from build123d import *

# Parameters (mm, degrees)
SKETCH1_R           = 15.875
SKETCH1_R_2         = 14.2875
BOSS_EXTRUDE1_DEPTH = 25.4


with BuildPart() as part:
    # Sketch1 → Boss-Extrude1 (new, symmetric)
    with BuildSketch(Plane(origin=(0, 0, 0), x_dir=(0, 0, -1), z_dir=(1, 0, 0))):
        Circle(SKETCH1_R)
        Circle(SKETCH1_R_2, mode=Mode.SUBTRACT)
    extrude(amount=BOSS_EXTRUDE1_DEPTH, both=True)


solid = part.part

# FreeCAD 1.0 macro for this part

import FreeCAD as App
import Part
import Sketcher
Q = App.Units.Quantity

doc = App.newDocument("Part")
body = doc.addObject("PartDesign::Body", "Body")

# Sketch on YZ plane
sketch1 = doc.addObject("Sketcher::SketchObject", "Sketch")
body.addObject(sketch1)
sketch1.AttachmentSupport = (doc.YZ_Plane, [""])
sketch1.MapMode = "FlatFace"
sketch1.addGeometry([
    Part.Circle(App.Vector(0, 0, 0), App.Vector(0, 0, 1), 16),
    Part.Circle(App.Vector(0, 0, 0), App.Vector(0, 0, 1), 14),
], False)
sketch1.addConstraint([
    Sketcher.Constraint("Coincident", 0, 3, -1, 1),
    Sketcher.Constraint("Coincident", 1, 3, -1, 1),
    Sketcher.Constraint("Diameter", 0, Q("1.25 in")),
    Sketcher.Constraint("Diameter", 1, Q("1.125 in")),
])
pad1 = doc.addObject("PartDesign::Pad", "Pad")
body.addObject(pad1)
pad1.Profile = sketch1
pad1.Length = Q("2 in")
pad1.Midplane = True

doc.recompute()
